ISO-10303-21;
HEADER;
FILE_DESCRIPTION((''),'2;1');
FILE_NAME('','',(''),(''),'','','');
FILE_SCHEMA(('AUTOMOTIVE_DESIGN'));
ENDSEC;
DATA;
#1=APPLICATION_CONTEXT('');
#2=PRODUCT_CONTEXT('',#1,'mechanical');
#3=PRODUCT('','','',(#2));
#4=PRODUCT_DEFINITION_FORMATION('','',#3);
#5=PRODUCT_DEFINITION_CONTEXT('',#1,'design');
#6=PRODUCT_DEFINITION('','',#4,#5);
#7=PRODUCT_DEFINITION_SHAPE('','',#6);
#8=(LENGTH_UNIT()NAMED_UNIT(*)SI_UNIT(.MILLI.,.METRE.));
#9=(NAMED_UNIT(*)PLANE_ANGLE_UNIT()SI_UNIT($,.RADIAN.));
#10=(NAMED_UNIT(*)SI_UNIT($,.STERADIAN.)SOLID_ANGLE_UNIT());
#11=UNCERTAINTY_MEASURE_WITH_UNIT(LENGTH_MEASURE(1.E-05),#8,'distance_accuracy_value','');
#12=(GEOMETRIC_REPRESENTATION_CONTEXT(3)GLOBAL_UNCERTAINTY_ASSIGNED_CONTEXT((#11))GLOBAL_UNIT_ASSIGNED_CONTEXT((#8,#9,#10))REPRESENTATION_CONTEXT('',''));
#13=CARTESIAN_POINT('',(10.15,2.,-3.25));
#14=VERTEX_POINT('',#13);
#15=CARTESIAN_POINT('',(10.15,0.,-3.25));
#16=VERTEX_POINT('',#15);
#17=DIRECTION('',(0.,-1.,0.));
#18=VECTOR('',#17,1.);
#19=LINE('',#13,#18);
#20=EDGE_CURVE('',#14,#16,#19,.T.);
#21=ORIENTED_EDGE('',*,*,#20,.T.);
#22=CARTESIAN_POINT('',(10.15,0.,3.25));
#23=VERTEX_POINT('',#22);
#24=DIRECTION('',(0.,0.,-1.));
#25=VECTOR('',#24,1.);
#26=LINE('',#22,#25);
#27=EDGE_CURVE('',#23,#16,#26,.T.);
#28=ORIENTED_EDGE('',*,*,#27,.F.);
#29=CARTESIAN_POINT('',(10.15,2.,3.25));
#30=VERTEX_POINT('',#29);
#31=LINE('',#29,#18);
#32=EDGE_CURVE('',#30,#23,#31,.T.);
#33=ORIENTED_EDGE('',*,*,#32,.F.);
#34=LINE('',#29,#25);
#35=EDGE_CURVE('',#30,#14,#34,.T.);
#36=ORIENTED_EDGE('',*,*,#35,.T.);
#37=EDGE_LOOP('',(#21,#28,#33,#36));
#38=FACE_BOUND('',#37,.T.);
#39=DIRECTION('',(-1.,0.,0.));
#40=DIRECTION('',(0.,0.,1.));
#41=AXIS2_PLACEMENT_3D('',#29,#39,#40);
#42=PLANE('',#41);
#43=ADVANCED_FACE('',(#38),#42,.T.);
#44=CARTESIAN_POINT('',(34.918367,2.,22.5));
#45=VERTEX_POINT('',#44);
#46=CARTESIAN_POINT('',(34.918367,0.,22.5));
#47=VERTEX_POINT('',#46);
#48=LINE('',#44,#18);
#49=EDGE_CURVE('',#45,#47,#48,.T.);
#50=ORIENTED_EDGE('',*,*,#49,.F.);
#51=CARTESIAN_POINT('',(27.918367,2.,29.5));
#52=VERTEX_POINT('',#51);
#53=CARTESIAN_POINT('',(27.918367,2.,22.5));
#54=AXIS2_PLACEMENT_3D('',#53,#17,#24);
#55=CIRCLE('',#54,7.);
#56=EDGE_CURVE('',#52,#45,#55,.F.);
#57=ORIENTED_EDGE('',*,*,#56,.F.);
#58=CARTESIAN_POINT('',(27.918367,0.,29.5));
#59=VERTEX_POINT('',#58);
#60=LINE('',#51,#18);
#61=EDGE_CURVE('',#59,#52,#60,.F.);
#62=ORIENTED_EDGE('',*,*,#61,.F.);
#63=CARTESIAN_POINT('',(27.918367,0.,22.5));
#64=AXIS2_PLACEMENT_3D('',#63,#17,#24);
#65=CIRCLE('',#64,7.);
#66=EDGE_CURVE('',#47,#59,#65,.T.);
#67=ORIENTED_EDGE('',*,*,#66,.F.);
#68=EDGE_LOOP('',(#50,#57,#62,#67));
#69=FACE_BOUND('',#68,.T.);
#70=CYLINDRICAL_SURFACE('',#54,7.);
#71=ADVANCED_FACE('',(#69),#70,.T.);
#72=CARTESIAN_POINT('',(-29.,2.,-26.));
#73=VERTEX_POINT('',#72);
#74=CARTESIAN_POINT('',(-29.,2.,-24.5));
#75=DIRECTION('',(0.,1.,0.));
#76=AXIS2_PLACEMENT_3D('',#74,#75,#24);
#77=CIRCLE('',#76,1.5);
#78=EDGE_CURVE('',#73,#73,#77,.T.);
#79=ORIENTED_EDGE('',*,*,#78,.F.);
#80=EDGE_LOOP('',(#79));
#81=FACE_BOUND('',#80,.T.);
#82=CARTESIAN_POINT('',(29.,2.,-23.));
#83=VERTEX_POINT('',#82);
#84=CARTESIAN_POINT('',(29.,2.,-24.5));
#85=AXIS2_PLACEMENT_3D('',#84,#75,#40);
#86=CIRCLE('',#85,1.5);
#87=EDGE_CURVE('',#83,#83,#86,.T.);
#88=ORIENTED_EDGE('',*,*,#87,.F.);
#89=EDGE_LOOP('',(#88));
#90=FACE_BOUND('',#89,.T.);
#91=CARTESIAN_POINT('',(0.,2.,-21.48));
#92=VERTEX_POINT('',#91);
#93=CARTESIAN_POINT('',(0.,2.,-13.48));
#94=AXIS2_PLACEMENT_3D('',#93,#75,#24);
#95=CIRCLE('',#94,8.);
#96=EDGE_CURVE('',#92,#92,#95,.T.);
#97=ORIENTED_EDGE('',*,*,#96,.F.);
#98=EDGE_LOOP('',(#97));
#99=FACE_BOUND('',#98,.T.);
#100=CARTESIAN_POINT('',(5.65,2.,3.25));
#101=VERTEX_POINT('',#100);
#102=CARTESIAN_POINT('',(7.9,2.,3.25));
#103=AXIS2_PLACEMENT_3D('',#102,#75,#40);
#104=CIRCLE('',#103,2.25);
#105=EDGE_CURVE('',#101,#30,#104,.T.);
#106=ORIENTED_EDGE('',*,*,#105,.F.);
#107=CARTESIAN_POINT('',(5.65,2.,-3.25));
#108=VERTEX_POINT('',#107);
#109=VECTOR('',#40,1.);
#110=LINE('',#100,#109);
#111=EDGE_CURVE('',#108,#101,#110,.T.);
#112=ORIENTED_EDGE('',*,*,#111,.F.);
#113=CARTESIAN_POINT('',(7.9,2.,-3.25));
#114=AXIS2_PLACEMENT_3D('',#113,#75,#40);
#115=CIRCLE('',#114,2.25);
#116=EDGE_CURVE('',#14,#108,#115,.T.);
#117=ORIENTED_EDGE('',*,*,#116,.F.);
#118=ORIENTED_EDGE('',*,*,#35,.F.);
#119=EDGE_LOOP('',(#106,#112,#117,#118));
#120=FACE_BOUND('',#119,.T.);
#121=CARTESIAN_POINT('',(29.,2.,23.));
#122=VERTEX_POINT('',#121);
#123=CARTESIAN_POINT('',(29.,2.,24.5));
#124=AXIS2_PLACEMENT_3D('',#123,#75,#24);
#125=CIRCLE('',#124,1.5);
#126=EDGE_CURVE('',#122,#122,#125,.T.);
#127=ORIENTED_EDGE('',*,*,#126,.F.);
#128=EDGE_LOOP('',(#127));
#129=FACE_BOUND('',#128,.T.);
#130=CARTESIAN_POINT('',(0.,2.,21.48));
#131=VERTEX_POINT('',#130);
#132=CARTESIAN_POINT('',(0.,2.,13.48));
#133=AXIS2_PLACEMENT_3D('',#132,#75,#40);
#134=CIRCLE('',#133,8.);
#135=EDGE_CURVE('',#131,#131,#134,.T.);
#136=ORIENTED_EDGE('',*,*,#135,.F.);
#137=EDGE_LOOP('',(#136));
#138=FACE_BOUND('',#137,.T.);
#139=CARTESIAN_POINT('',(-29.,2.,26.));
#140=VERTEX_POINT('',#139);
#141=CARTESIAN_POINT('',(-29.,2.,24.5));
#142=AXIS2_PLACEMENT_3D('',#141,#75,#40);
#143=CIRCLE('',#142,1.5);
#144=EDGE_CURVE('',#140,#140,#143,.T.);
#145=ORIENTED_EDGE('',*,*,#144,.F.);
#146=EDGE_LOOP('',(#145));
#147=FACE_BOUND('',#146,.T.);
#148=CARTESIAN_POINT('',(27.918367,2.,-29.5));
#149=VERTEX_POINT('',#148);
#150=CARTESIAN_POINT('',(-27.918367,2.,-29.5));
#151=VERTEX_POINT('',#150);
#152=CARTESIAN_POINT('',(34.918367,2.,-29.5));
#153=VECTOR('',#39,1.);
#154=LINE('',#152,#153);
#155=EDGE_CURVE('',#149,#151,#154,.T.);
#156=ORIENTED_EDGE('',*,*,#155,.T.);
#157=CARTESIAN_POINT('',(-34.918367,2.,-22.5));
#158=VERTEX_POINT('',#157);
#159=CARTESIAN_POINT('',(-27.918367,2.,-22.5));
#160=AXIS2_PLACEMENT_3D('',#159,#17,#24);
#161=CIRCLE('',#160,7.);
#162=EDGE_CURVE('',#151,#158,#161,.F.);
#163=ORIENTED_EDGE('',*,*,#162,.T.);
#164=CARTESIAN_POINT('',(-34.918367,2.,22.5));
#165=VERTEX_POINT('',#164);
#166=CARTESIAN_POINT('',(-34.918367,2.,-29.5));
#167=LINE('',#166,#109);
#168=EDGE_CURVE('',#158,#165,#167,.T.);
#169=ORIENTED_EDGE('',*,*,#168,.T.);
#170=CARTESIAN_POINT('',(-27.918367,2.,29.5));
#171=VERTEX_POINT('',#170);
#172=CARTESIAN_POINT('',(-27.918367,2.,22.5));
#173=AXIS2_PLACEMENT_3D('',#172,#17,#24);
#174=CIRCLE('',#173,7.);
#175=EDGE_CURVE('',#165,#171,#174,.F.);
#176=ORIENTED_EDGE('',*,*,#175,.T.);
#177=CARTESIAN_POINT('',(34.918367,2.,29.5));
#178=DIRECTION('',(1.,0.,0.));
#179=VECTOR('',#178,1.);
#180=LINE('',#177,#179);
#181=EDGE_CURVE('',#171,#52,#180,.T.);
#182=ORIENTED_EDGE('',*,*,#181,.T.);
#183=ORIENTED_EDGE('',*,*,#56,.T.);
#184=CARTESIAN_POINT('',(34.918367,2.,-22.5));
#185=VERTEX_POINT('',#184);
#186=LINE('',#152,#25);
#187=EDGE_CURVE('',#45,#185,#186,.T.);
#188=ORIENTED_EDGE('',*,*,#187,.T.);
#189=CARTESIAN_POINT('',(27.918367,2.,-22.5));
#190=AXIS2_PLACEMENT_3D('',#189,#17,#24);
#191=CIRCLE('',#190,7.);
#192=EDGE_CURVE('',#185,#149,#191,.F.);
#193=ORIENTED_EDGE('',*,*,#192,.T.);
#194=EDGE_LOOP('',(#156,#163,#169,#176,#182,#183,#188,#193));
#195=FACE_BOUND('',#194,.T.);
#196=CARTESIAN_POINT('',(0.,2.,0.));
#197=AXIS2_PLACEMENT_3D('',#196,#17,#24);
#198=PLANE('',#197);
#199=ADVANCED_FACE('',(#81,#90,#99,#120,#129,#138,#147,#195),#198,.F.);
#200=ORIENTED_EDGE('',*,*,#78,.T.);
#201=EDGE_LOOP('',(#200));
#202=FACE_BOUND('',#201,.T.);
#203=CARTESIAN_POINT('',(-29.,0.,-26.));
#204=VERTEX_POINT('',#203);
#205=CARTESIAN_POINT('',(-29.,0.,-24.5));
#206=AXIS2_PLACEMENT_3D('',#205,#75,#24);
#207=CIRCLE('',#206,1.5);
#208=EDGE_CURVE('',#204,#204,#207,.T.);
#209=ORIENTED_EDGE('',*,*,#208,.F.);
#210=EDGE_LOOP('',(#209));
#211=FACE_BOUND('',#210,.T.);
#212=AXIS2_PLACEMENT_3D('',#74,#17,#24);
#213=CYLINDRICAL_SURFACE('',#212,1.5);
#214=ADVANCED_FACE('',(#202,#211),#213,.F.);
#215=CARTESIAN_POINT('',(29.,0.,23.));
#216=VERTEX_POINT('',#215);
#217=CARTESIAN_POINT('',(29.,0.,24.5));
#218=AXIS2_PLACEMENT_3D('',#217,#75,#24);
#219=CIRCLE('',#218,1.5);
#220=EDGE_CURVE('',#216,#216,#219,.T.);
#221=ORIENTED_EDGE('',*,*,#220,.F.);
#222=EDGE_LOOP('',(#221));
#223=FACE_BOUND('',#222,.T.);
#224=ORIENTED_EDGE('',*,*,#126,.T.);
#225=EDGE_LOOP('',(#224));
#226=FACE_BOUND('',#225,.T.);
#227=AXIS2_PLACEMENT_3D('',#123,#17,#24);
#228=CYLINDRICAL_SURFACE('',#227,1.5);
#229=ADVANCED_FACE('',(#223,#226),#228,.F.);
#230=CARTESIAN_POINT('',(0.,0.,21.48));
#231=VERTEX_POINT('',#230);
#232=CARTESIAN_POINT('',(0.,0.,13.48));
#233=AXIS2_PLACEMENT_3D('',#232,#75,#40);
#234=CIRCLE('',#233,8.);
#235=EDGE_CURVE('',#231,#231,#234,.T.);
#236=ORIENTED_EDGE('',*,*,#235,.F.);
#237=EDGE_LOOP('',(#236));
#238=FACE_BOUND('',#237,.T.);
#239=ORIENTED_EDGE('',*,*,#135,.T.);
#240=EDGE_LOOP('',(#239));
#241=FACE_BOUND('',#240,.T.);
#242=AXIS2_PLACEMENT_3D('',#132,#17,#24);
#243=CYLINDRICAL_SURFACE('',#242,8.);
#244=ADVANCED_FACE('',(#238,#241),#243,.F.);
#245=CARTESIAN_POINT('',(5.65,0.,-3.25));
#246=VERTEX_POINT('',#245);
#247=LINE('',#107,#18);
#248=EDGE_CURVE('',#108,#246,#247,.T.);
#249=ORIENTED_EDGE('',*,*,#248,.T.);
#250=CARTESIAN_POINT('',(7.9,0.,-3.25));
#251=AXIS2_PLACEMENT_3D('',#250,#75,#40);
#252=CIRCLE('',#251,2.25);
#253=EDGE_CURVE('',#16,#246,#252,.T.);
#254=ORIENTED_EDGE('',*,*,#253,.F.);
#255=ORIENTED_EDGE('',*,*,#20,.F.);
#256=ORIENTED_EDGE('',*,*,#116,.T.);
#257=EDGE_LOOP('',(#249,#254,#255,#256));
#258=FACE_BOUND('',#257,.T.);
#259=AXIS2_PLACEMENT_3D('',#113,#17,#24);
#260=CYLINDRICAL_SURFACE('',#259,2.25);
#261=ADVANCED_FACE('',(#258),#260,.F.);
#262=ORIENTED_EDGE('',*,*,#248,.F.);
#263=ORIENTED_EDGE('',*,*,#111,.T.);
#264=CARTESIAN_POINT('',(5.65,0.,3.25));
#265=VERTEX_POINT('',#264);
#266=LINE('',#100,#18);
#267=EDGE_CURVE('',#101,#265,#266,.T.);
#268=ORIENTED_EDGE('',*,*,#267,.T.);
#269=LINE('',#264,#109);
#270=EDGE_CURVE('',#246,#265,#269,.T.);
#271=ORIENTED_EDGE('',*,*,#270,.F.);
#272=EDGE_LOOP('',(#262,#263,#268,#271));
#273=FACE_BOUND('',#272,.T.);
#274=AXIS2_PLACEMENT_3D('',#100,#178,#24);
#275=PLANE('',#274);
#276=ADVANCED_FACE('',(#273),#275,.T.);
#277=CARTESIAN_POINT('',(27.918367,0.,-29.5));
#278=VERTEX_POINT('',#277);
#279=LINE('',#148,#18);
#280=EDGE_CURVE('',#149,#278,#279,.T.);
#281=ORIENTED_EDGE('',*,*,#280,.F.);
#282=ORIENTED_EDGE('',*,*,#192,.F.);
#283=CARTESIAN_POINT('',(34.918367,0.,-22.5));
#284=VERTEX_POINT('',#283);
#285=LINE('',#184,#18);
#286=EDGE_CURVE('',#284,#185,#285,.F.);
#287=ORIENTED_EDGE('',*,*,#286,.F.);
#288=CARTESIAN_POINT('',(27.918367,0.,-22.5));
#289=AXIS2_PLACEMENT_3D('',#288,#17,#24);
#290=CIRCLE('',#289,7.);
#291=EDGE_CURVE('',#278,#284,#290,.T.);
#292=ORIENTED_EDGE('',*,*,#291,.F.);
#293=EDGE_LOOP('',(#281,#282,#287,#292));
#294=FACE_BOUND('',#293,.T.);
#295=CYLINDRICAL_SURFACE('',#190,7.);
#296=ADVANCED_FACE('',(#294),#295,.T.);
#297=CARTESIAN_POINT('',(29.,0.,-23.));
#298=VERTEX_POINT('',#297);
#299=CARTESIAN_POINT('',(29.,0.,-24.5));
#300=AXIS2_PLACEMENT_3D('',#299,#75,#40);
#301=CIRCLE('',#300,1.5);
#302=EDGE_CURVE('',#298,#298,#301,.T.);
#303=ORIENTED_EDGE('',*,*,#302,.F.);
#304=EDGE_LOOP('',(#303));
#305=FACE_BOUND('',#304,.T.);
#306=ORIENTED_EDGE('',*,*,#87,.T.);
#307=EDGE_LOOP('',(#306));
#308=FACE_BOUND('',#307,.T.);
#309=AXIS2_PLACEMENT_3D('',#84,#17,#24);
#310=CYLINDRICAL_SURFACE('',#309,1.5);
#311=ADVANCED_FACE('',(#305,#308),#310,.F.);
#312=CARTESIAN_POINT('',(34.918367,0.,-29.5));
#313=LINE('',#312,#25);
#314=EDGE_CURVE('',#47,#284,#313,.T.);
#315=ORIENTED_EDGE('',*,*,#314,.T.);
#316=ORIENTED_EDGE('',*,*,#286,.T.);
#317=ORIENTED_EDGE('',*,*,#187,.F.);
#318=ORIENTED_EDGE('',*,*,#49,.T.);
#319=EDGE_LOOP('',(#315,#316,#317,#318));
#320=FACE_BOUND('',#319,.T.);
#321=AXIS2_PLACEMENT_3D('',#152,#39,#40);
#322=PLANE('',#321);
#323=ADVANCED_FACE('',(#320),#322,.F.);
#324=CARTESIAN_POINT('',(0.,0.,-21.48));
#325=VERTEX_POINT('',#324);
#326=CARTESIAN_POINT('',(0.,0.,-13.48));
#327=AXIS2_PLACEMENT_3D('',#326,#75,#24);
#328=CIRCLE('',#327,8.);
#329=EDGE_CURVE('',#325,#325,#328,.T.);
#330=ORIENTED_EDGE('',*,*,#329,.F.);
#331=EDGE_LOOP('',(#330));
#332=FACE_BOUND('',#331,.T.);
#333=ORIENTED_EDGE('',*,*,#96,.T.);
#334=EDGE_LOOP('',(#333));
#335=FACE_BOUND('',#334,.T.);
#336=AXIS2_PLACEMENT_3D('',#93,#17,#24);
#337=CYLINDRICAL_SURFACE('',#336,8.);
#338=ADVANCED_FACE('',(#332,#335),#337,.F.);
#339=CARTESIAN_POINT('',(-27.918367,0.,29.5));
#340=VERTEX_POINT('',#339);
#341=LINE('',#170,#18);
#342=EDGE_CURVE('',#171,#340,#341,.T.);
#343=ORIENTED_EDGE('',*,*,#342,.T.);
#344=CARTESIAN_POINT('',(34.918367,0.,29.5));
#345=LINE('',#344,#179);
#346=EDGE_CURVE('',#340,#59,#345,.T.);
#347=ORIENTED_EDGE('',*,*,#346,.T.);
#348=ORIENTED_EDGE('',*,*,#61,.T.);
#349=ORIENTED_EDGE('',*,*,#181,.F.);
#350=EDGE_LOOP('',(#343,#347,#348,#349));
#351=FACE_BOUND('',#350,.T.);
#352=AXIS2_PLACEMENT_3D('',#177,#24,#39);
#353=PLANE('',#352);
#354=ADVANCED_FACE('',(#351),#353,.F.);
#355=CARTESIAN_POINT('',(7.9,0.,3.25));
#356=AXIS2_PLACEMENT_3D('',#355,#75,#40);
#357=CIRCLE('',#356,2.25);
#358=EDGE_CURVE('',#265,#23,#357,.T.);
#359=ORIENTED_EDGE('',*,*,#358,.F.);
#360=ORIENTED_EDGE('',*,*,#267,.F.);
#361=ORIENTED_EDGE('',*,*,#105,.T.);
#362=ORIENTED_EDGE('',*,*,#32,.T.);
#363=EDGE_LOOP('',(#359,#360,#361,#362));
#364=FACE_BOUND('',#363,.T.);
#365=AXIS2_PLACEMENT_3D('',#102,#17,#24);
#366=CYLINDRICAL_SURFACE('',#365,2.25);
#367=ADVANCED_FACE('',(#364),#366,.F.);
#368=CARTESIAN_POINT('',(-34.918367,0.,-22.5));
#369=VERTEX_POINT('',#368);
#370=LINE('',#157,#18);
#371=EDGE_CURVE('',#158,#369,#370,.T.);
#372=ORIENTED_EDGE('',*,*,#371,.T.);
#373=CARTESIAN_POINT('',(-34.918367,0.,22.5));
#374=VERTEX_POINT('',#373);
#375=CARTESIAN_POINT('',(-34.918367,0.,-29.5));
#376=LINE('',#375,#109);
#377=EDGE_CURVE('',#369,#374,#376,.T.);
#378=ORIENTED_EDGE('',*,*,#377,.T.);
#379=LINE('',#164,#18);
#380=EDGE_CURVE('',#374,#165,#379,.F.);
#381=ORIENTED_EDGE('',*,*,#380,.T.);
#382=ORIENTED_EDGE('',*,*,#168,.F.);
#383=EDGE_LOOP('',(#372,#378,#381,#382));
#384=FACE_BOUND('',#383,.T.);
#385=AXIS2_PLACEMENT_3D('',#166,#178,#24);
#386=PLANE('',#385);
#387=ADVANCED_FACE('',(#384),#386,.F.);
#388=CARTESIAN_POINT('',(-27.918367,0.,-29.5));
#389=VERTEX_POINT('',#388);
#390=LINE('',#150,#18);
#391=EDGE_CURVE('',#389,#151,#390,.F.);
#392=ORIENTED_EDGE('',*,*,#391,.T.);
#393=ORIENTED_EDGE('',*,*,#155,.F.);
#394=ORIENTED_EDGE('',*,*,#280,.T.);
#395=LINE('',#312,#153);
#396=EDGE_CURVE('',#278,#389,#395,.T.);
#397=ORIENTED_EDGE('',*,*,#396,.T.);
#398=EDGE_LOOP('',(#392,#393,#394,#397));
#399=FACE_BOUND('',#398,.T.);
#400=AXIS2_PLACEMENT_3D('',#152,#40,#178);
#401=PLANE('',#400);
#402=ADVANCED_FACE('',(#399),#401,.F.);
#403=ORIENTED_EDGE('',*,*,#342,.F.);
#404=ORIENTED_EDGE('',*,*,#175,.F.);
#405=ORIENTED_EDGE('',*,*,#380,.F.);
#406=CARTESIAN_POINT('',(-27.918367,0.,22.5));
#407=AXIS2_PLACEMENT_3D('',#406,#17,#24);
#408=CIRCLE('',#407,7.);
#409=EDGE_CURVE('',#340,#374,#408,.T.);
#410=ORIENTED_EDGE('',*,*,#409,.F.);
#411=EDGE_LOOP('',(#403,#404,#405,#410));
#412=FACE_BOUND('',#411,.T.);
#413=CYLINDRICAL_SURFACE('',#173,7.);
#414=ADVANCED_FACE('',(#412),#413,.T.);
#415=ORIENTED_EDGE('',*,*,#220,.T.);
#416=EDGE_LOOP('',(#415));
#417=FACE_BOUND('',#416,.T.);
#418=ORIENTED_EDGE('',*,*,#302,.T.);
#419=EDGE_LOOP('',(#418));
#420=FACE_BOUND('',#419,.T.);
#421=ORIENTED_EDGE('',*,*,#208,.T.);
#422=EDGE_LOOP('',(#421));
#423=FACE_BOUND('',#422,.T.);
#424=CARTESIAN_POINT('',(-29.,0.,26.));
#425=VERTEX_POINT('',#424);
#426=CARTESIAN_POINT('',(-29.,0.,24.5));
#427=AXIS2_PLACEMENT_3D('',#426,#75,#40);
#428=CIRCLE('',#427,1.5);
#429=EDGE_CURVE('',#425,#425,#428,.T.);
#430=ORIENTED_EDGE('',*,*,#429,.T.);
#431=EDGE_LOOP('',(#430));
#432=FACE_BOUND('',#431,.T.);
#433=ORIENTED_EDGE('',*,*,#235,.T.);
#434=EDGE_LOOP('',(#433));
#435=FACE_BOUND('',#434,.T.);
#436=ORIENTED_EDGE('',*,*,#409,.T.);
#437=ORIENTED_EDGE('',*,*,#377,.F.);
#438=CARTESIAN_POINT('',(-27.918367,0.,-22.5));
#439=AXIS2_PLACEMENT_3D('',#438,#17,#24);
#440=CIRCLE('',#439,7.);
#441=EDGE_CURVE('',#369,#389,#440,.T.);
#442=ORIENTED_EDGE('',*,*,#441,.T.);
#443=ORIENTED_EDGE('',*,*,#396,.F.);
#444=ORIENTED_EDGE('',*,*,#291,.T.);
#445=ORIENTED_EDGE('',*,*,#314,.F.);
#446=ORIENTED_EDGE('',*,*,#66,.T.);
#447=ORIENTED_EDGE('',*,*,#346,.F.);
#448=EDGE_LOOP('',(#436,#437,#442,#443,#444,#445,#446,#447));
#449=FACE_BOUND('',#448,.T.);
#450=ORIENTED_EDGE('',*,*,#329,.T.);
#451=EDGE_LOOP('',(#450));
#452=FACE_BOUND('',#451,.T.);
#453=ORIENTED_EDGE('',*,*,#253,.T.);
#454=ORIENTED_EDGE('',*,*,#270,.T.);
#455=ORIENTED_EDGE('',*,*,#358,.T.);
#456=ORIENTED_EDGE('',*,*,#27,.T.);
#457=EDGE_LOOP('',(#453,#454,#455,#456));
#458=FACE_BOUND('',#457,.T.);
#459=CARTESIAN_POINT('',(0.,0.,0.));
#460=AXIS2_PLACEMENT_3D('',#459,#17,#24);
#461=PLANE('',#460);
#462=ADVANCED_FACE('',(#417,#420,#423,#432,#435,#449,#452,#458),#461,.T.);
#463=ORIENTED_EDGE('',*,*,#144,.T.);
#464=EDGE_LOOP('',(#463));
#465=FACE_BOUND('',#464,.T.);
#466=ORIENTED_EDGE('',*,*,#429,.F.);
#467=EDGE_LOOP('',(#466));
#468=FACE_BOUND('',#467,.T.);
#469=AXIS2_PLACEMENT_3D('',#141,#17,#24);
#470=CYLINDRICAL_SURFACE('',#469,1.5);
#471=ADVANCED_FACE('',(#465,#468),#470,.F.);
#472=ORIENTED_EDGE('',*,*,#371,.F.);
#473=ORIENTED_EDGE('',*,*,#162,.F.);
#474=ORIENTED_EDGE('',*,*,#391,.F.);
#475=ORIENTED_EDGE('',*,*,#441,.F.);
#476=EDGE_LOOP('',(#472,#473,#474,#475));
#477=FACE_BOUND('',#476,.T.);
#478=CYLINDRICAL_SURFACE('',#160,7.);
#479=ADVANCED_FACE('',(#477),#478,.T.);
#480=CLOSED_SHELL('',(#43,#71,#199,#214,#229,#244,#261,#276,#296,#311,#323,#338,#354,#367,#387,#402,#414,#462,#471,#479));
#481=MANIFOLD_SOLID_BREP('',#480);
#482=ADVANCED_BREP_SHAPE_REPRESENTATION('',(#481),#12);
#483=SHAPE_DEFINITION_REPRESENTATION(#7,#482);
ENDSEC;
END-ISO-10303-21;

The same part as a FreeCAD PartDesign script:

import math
import FreeCAD as App
import Part
import Sketcher
from FreeCAD import Vector


def edges_at(feature, points):
    """Names of the edges that pass closest to the given points."""
    edges = feature.Shape.Edges
    near = lambda p: min(range(len(edges)), key=lambda i: edges[i].distToShape(Part.Vertex(*p))[0])
    return sorted({f"Edge{near(p) + 1}" for p in points})


def add_polygon(sketch, points):
    """Adds a closed chain of lines whose ends are joined by coincident constraints."""
    first, n = sketch.GeometryCount, len(points)
    for a, b in zip(points, points[1:] + points[:1]):
        sketch.addGeometry(Part.LineSegment(App.Vector(*a, 0), App.Vector(*b, 0)), False)
    for i in range(n):
        sketch.addConstraint(Sketcher.Constraint("Coincident", first + i, 2, first + (i + 1) % n, 1))

doc = App.newDocument("Part")
body = doc.addObject("PartDesign::Body", "Body")

sketch1 = body.newObject("Sketcher::SketchObject", "Sketch")
sketch1.AttachmentSupport = (doc.getObject("XZ_Plane"), [""])
sketch1.MapMode = "FlatFace"
add_polygon(sketch1, [(34.9, 29.5), (34.9, -29.5), (-34.9, -29.5), (-34.9, 29.5)])
sketch1.addGeometry(Part.Circle(Vector(29, -24.5, 0), Vector(0, 0, 1), 1.5), False)
sketch1.addGeometry(Part.Circle(Vector(0, -13.5, 0), Vector(0, 0, 1), 8), False)
sketch1.addGeometry(Part.Circle(Vector(-29, -24.5, 0), Vector(0, 0, 1), 1.5), False)
sketch1.addGeometry(Part.ArcOfCircle(Part.Circle(Vector(7.9, 3.2, 0), Vector(0, 0, 1), 2.2), math.radians(0), math.radians(180)), False)
sketch1.addGeometry(Part.LineSegment(Vector(5.7, 3.2, 0), Vector(5.7, -3.2, 0)), False)
sketch1.addGeometry(Part.ArcOfCircle(Part.Circle(Vector(7.9, -3.2, 0), Vector(0, 0, 1), 2.2), math.radians(180), math.radians(360)), False)
sketch1.addGeometry(Part.LineSegment(Vector(10.2, -3.2, 0), Vector(10.2, 3.2, 0)), False)
sketch1.addGeometry(Part.Circle(Vector(29, 24.5, 0), Vector(0, 0, 1), 1.5), False)
sketch1.addGeometry(Part.Circle(Vector(0, 13.5, 0), Vector(0, 0, 1), 8), False)
sketch1.addGeometry(Part.Circle(Vector(-29, 24.5, 0), Vector(0, 0, 1), 1.5), False)
sketch1.addConstraint(Sketcher.Constraint("Tangent", 7, 2, 8, 1))
sketch1.addConstraint(Sketcher.Constraint("Tangent", 8, 2, 9, 1))
sketch1.addConstraint(Sketcher.Constraint("Tangent", 9, 2, 10, 1))
sketch1.addConstraint(Sketcher.Constraint("Tangent", 10, 2, 7, 1))
sketch1.addConstraint(Sketcher.Constraint("Vertical", 0))
sketch1.addConstraint(Sketcher.Constraint("Horizontal", 1))
sketch1.addConstraint(Sketcher.Constraint("Vertical", 2))
sketch1.addConstraint(Sketcher.Constraint("Horizontal", 3))
sketch1.addConstraint(Sketcher.Constraint("Vertical", 8))
sketch1.addConstraint(Sketcher.Constraint("Vertical", 10))
sketch1.addConstraint(Sketcher.Constraint("Equal", 4, 6))
sketch1.addConstraint(Sketcher.Constraint("Equal", 6, 11))
sketch1.addConstraint(Sketcher.Constraint("Equal", 5, 12))
sketch1.addConstraint(Sketcher.Constraint("Equal", 11, 13))
sketch1.addConstraint(Sketcher.Constraint("Symmetric", 6, 3, 11, 3, -1, 1))
sketch1.addConstraint(Sketcher.Constraint("Symmetric", 5, 3, 12, 3, -1, 1))
sketch1.addConstraint(Sketcher.Constraint("Symmetric", 4, 3, 13, 3, -1, 1))
sketch1.addConstraint(Sketcher.Constraint("Symmetric", 0, 2, 2, 2, -1, 1))
sketch1.addConstraint(Sketcher.Constraint("Symmetric", 4, 3, 6, 3, -2))
sketch1.addConstraint(Sketcher.Constraint("PointOnObject", 5, 3, -2))
sketch1.addConstraint(Sketcher.Constraint("Diameter", 4, 3.0))
sketch1.addConstraint(Sketcher.Constraint("Diameter", 5, 16.0))
sketch1.addConstraint(Sketcher.Constraint("DistanceY", 0, 2, 0, 1, 59.0))
sketch1.addConstraint(Sketcher.Constraint("Radius", 7, 2.25))
sketch1.addConstraint(Sketcher.Constraint("DistanceY", 8, 2, 8, 1, 6.5))
sketch1.addConstraint(Sketcher.Constraint("DistanceX", -1, 1, 4, 3, 29.0))
sketch1.addConstraint(Sketcher.Constraint("DistanceY", 4, 3, 11, 3, 49.0))
sketch1.addConstraint(Sketcher.Constraint("DistanceX", -1, 1, 7, 3, 7.9))
sketch1.addConstraint(Sketcher.Constraint("DistanceY", 5, 3, -1, 1, 13.48))
sketch1.addConstraint(Sketcher.Constraint("DistanceY", -1, 1, 7, 3, 3.25))
sketch1.addConstraint(Sketcher.Constraint("DistanceX", 1, 2, 1, 1, 69.836735))
pad1 = body.newObject("PartDesign::Pad", "Pad")
pad1.Profile = sketch1
pad1.Length = 2
pad1.Reversed = True
doc.recompute()

fillet = body.newObject("PartDesign::Fillet", "Fillet")
fillet.Base = (pad1, edges_at(pad1, [
    (-34.918, 1, -29.5),
    (34.918, 1, -29.5),
    (34.918, 1, 29.5),
    (-34.918, 1, 29.5),
]))
fillet.Radius = 7

doc.recompute()
